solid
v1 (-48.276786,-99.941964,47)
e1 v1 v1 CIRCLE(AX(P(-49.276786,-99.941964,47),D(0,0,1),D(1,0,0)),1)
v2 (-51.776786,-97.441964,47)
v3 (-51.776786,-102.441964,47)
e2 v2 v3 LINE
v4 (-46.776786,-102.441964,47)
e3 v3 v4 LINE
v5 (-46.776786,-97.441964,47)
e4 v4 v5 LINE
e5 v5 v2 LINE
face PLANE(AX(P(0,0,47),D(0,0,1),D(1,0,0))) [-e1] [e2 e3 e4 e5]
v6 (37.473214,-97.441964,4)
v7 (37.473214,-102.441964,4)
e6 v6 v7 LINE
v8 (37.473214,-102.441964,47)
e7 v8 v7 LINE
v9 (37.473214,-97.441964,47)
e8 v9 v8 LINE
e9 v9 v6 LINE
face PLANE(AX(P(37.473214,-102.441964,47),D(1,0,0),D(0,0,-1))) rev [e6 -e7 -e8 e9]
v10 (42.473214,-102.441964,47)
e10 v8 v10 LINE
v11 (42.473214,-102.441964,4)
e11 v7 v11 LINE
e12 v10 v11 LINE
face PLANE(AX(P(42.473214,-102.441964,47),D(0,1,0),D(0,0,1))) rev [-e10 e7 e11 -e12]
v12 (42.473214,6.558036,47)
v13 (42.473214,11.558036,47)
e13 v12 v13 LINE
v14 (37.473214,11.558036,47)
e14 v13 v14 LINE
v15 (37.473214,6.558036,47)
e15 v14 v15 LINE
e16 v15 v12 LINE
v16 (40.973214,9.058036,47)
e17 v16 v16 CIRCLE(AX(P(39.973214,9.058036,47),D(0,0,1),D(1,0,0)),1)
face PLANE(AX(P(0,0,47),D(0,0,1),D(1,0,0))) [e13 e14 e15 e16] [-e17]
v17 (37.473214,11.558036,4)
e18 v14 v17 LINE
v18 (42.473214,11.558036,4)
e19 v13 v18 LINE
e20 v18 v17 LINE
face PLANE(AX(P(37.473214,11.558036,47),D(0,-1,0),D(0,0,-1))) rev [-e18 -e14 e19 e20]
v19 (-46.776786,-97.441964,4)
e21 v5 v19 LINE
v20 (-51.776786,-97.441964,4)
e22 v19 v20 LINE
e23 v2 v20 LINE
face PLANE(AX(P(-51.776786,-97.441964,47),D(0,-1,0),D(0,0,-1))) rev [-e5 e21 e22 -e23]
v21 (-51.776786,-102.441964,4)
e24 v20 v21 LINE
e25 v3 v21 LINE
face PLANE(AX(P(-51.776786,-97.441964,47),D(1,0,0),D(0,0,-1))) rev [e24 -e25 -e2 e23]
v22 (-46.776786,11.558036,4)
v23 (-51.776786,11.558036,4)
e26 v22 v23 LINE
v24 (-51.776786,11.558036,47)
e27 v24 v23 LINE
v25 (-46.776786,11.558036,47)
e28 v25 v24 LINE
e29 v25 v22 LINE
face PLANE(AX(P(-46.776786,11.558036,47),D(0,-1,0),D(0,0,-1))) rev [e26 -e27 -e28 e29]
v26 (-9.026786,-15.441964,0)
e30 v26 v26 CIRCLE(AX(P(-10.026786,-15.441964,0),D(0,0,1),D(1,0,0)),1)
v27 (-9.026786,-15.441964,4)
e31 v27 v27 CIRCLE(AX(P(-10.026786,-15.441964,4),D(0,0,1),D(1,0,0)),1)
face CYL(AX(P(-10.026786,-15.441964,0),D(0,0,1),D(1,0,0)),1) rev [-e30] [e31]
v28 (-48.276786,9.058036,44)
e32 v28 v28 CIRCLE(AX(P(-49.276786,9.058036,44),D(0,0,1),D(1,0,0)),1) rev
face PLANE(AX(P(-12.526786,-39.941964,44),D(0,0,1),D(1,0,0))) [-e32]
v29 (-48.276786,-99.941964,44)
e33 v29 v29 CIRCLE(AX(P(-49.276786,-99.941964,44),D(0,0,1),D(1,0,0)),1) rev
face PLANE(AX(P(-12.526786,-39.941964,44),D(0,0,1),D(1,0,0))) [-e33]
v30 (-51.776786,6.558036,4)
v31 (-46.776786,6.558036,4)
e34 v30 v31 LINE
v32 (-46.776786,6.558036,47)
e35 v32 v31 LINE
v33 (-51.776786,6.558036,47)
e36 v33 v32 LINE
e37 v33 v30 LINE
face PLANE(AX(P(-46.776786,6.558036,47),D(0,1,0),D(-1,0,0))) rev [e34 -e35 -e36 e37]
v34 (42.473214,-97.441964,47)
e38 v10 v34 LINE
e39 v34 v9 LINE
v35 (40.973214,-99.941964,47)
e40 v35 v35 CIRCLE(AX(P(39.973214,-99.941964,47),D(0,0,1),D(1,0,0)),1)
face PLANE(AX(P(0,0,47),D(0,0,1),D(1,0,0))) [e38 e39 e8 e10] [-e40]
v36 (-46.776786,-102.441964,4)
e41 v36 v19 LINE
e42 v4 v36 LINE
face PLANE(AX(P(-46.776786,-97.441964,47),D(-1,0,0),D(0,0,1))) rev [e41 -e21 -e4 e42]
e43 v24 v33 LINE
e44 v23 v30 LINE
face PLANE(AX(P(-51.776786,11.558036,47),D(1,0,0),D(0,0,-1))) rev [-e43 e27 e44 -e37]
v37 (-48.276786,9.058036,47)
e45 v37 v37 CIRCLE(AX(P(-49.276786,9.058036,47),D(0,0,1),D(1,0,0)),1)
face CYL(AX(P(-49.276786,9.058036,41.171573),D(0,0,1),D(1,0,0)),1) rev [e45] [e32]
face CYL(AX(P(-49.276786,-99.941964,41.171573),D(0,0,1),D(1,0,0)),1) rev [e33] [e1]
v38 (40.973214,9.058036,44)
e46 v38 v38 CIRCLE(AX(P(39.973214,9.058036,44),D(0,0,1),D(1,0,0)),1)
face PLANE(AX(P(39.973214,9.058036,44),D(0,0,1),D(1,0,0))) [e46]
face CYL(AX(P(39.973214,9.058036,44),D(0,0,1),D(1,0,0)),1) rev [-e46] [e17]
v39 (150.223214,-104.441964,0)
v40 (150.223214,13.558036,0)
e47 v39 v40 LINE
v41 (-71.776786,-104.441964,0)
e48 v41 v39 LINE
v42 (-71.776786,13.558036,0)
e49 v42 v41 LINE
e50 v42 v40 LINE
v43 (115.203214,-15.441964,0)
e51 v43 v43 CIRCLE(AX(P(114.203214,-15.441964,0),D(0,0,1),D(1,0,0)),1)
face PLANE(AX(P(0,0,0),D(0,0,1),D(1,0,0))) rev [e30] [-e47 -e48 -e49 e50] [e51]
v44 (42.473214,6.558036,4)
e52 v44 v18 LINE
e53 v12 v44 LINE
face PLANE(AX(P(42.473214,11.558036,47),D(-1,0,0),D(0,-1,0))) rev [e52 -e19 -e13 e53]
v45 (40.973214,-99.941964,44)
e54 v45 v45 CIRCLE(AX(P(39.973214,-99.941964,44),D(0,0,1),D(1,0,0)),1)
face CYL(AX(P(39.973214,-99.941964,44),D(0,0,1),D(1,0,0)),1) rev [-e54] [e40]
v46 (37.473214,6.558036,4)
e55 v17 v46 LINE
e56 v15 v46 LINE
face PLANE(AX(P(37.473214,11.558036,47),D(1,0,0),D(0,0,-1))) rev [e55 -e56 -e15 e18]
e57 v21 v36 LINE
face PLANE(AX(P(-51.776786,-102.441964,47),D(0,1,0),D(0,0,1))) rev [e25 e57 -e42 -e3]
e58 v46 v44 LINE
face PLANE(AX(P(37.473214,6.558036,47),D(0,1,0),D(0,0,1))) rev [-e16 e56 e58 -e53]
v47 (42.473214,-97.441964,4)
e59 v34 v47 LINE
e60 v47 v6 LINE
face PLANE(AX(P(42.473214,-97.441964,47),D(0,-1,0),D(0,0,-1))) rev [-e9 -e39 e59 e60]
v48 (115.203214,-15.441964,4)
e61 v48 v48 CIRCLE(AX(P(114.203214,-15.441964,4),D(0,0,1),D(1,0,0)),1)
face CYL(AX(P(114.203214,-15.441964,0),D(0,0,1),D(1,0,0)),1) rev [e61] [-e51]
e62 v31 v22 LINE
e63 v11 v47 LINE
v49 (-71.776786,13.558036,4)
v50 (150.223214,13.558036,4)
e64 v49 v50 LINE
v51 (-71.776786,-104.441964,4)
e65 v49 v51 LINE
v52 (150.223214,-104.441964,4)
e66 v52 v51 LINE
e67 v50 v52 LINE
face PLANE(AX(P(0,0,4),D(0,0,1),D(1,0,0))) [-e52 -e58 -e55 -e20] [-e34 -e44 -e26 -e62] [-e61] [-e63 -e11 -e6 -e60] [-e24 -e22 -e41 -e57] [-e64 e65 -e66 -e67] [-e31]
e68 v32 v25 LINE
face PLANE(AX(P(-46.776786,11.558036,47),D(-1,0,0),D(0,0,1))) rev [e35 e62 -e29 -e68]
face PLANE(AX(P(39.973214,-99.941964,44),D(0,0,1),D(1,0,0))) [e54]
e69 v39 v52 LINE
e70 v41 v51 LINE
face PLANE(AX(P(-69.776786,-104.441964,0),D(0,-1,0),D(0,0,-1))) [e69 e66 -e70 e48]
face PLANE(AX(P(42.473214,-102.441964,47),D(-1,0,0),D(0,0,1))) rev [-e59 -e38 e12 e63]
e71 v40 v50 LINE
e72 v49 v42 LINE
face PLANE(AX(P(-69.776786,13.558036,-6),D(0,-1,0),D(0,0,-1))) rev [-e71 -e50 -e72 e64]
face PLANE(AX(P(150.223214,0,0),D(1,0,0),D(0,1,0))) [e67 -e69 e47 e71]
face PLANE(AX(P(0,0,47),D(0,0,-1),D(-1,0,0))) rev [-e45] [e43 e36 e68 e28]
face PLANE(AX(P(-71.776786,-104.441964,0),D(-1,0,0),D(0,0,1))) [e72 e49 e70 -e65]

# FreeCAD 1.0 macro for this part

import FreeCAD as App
import Part
import Sketcher

V = App.Vector
Q = App.Units.Quantity


def edges_at(feature, points):
    """Names of the edges that pass closest to the given points."""
    edges = feature.Shape.Edges
    near = lambda p: min(range(len(edges)), key=lambda i: edges[i].distToShape(Part.Vertex(*p))[0])
    return sorted({f"Edge{near(p) + 1}" for p in points})


def add_polygon(sketch, points):
    """Adds a closed chain of lines whose ends are joined by coincident constraints."""
    first, n = sketch.GeometryCount, len(points)
    for a, b in zip(points, points[1:] + points[:1]):
        sketch.addGeometry(Part.LineSegment(App.Vector(*a, 0), App.Vector(*b, 0)), False)
    for i in range(n):
        sketch.addConstraint(Sketcher.Constraint("Coincident", first + i, 2, first + (i + 1) % n, 1))

doc = App.newDocument("Part")
body = doc.addObject("PartDesign::Body", "Body")

# Sketch on XY plane
sketch1 = body.newObject("Sketcher::SketchObject", "Sketch")
sketch1.AttachmentSupport = (doc.getObject("XY_Plane"), [""])
sketch1.MapMode = "FlatFace"
add_polygon(sketch1, [(-99.776786, 38.058036), (-99.776786, -111.941964), (100.223214, -111.941964), (100.223214, 38.058036)])  # lines 0-3
sketch1.addConstraint([
    Sketcher.Constraint("Vertical", 0),
    Sketcher.Constraint("Horizontal", 1),
    Sketcher.Constraint("Vertical", 2),
    Sketcher.Constraint("Horizontal", 3),
    Sketcher.Constraint("DistanceX", 1, 1, 1, 2, Q("200 mm")),
    Sketcher.Constraint("DistanceY", 0, 2, 0, 1, Q("150 mm")),
    Sketcher.Constraint("DistanceX", 0, 2, -1, 1, Q("99.776786 mm")),
    Sketcher.Constraint("DistanceY", 0, 2, -1, 1, Q("111.941964 mm")),
])
pad1 = body.newObject("PartDesign::Pad", "Pad")
pad1.Profile = sketch1
pad1.Length = 4

# Sketch on YZ plane
sketch2 = body.newObject("Sketcher::SketchObject", "Sketch001")
sketch2.AttachmentSupport = (doc.getObject("YZ_Plane"), [""])
sketch2.MapMode = "FlatFace"
sketch2.AttachmentOffset = App.Placement(V(0, 0, 100.223214), App.Rotation())
add_polygon(sketch2, [(38.058036, 4), (-111.941964, 4), (-111.941964, 0), (38.058036, 0)])  # lines 0-3
sketch2.addConstraint([
    Sketcher.Constraint("Horizontal", 0),
    Sketcher.Constraint("Vertical", 1),
    Sketcher.Constraint("Horizontal", 2),
    Sketcher.Constraint("Vertical", 3),
    Sketcher.Constraint("PointOnObject", 1, 2, -1),
    Sketcher.Constraint("DistanceX", 0, 2, 0, 1, Q("150 mm")),
    Sketcher.Constraint("DistanceY", 1, 2, 1, 1, Q("4 mm")),
    Sketcher.Constraint("DistanceX", 0, 2, -1, 1, Q("111.941964 mm")),
])
pad2 = body.newObject("PartDesign::Pad", "Pad001")
pad2.Profile = sketch2
pad2.Length = 50

# Sketch on XY plane
sketch3 = body.newObject("Sketcher::SketchObject", "Sketch002")
sketch3.AttachmentSupport = (doc.getObject("XY_Plane"), [""])
sketch3.MapMode = "FlatFace"
sketch3.addGeometry(Part.Circle(V(-96.776786, -77.941964, 0), V(0, 0, 1), 1), False)
sketch3.addConstraint([
    Sketcher.Constraint("Diameter", 0, Q("2 mm")),
    Sketcher.Constraint("DistanceX", 0, 3, -1, 1, Q("96.776786 mm")),
    Sketcher.Constraint("DistanceY", 0, 3, -1, 1, Q("77.941964 mm")),
])
pocket1 = body.newObject("PartDesign::Pocket", "Pocket")
pocket1.Profile = sketch3
pocket1.Length = 21
pocket1.Reversed = True

# Sketch on XY plane
sketch4 = body.newObject("Sketcher::SketchObject", "Sketch003")
sketch4.AttachmentSupport = (doc.getObject("XY_Plane"), [""])
sketch4.MapMode = "FlatFace"
sketch4.addGeometry(Part.Circle(V(147.223214, -77.941964, 0), V(0, 0, 1), 1), False)
sketch4.addConstraint([
    Sketcher.Constraint("Diameter", 0, Q("2 mm")),
    Sketcher.Constraint("DistanceX", -1, 1, 0, 3, Q("147.223214 mm")),
    Sketcher.Constraint("DistanceY", 0, 3, -1, 1, Q("77.941964 mm")),
])
pocket2 = body.newObject("PartDesign::Pocket", "Pocket001")
pocket2.Profile = sketch4
pocket2.Length = 21
pocket2.Reversed = True

# Sketch on XY plane
sketch5 = body.newObject("Sketcher::SketchObject", "Sketch004")
sketch5.AttachmentSupport = (doc.getObject("XY_Plane"), [""])
sketch5.MapMode = "FlatFace"
sketch5.addGeometry(Part.Circle(V(99.423214, -77.941964, 0), V(0, 0, 1), 1), False)
sketch5.addConstraint([
    Sketcher.Constraint("Diameter", 0, Q("2 mm")),
    Sketcher.Constraint("DistanceX", -1, 1, 0, 3, Q("99.423214 mm")),
    Sketcher.Constraint("DistanceY", 0, 3, -1, 1, Q("77.941964 mm")),
])
pocket3 = body.newObject("PartDesign::Pocket", "Pocket002")
pocket3.Profile = sketch5
pocket3.Length = 21
pocket3.Reversed = True

# Sketch on XY plane
sketch6 = body.newObject("Sketcher::SketchObject", "Sketch005")
sketch6.AttachmentSupport = (doc.getObject("XY_Plane"), [""])
sketch6.MapMode = "FlatFace"
sketch6.AttachmentOffset = App.Placement(V(0, 0, 4), App.Rotation())
sketch6.addGeometry([
    Part.Circle(V(114.203214, -15.441964, 0), V(0, 0, 1), 1),
    Part.Circle(V(-10.026786, -15.441964, 0), V(0, 0, 1), 1),
], False)
sketch6.addConstraint([
    Sketcher.Constraint("Equal", 0, 1),
    Sketcher.Constraint("Horizontal", 0, 3, 1, 3),
    Sketcher.Constraint("Diameter", 0, Q("2 mm")),
    Sketcher.Constraint("DistanceX", 1, 3, 0, 3, Q("124.23 mm")),
    Sketcher.Constraint("DistanceX", -1, 1, 0, 3, Q("114.203214 mm")),
    Sketcher.Constraint("DistanceY", 0, 3, -1, 1, Q("15.441964 mm")),
])
pocket4 = body.newObject("PartDesign::Pocket", "Pocket003")
pocket4.Profile = sketch6
pocket4.Type = "ThroughAll"

# Sketch on XY plane
sketch7 = body.newObject("Sketcher::SketchObject", "Sketch006")
sketch7.AttachmentSupport = (doc.getObject("XY_Plane"), [""])
sketch7.MapMode = "FlatFace"
sketch7.addGeometry(Part.Circle(V(-93.632683, -80.249228, 0), V(0, 0, 1), 6.144103), False)
sketch7.addConstraint([
    Sketcher.Constraint("Diameter", 0, Q("12.288205 mm")),
    Sketcher.Constraint("DistanceY", 0, 3, -1, 1, Q("80.249228 mm")),
    Sketcher.Constraint("DistanceX", 0, 3, -1, 1, Q("93.632683 mm")),
])
pad3 = body.newObject("PartDesign::Pad", "Pad002")
pad3.Profile = sketch7
pad3.Length = 4

# Sketch on XY plane
sketch8 = body.newObject("Sketcher::SketchObject", "Sketch007")
sketch8.AttachmentSupport = (doc.getObject("XY_Plane"), [""])
sketch8.MapMode = "FlatFace"
sketch8.AttachmentOffset = App.Placement(V(0, 0, 4), App.Rotation())
add_polygon(sketch8, [(-12.526786, 11.558036), (-12.526786, 6.558036), (-7.526786, 6.558036), (-7.526786, 11.558036)])  # lines 0-3
add_polygon(sketch8, [(111.33698, 11.558036), (111.33698, 6.558036), (116.33698, 6.558036), (116.33698, 11.558036)])  # lines 4-7
sketch8.addConstraint([
    Sketcher.Constraint("Vertical", 0),
    Sketcher.Constraint("Horizontal", 1),
    Sketcher.Constraint("Vertical", 2),
    Sketcher.Constraint("Horizontal", 3),
    Sketcher.Constraint("Vertical", 4),
    Sketcher.Constraint("Horizontal", 5),
    Sketcher.Constraint("Vertical", 6),
    Sketcher.Constraint("Horizontal", 7),
    Sketcher.Constraint("Horizontal", 1, 2, 4, 2),
    Sketcher.Constraint("Horizontal", 3, 2, 6, 2),
    Sketcher.Constraint("Equal", 3, 5),
    Sketcher.Constraint("Equal", 7, 0),
    Sketcher.Constraint("DistanceX", 1, 1, 1, 2, Q("5 mm")),
    Sketcher.Constraint("DistanceX", -1, 1, 4, 2, Q("111.33698 mm")),
    Sketcher.Constraint("DistanceX", 0, 2, -1, 1, Q("12.526786 mm")),
    Sketcher.Constraint("DistanceY", -1, 1, 0, 2, Q("6.558036 mm")),
])
pad4 = body.newObject("PartDesign::Pad", "Pad003")
pad4.Profile = sketch8
pad4.Length = 43

# Sketch on XY plane
sketch9 = body.newObject("Sketcher::SketchObject", "Sketch008")
sketch9.AttachmentSupport = (doc.getObject("XY_Plane"), [""])
sketch9.MapMode = "FlatFace"
sketch9.AttachmentOffset = App.Placement(V(0, 0, 4), App.Rotation())
add_polygon(sketch9, [(37.473214, 11.558036), (37.473214, 6.558036), (42.473214, 6.558036), (42.473214, 11.558036)])  # lines 0-3
sketch9.addConstraint([
    Sketcher.Constraint("Vertical", 0),
    Sketcher.Constraint("Horizontal", 1),
    Sketcher.Constraint("Vertical", 2),
    Sketcher.Constraint("Horizontal", 3),
    Sketcher.Constraint("Equal", 3, 0),
    Sketcher.Constraint("DistanceX", 1, 1, 1, 2, Q("5 mm")),
    Sketcher.Constraint("DistanceX", -1, 1, 0, 2, Q("37.473214 mm")),
    Sketcher.Constraint("DistanceY", -1, 1, 0, 2, Q("6.558036 mm")),
])
pad5 = body.newObject("PartDesign::Pad", "Pad004")
pad5.Profile = sketch9
pad5.Length = 43

# Sketch on XY plane
sketch10 = body.newObject("Sketcher::SketchObject", "Sketch009")
sketch10.AttachmentSupport = (doc.getObject("XY_Plane"), [""])
sketch10.MapMode = "FlatFace"
sketch10.AttachmentOffset = App.Placement(V(0, 0, 4), App.Rotation())
add_polygon(sketch10, [(-67.526786, 11.558036), (-67.526786, 6.558036), (-62.526786, 6.558036), (-62.526786, 11.558036)])  # lines 0-3
sketch10.addConstraint([
    Sketcher.Constraint("Vertical", 0),
    Sketcher.Constraint("Horizontal", 1),
    Sketcher.Constraint("Vertical", 2),
    Sketcher.Constraint("Horizontal", 3),
    Sketcher.Constraint("Equal", 3, 0),
    Sketcher.Constraint("DistanceX", 1, 1, 1, 2, Q("5 mm")),
    Sketcher.Constraint("DistanceX", 0, 2, -1, 1, Q("67.526786 mm")),
    Sketcher.Constraint("DistanceY", -1, 1, 0, 2, Q("6.558036 mm")),
])
pad6 = body.newObject("PartDesign::Pad", "Pad005")
pad6.Profile = sketch10
pad6.Length = 43

# Sketch on XY plane
sketch11 = body.newObject("Sketcher::SketchObject", "Sketch010")
sketch11.AttachmentSupport = (doc.getObject("XY_Plane"), [""])
sketch11.MapMode = "FlatFace"
sketch11.AttachmentOffset = App.Placement(V(0, 0, 4), App.Rotation())
add_polygon(sketch11, [(-99.776786, 38.058036), (-99.776786, -111.941964), (-69.776786, -111.941964), (-69.776786, 38.058036)])  # lines 0-3
sketch11.addConstraint([
    Sketcher.Constraint("Vertical", 0),
    Sketcher.Constraint("Horizontal", 1),
    Sketcher.Constraint("Vertical", 2),
    Sketcher.Constraint("Horizontal", 3),
    Sketcher.Constraint("DistanceX", 1, 1, 1, 2, Q("30 mm")),
    Sketcher.Constraint("DistanceY", 0, 2, 0, 1, Q("150 mm")),
    Sketcher.Constraint("DistanceX", 0, 2, -1, 1, Q("99.776786 mm")),
    Sketcher.Constraint("DistanceY", 0, 2, -1, 1, Q("111.941964 mm")),
])
pocket5 = body.newObject("PartDesign::Pocket", "Pocket004")
pocket5.Profile = sketch11
pocket5.Length = 10

# Sketch on XY plane
sketch12 = body.newObject("Sketcher::SketchObject", "Sketch011")
sketch12.AttachmentSupport = (doc.getObject("XY_Plane"), [""])
sketch12.MapMode = "FlatFace"
sketch12.AttachmentOffset = App.Placement(V(0, 0, 4), App.Rotation())
add_polygon(sketch12, [(-69.776786, 38.058036), (-69.776786, 13.558036), (150.223214, 13.558036), (150.223214, 38.058036)])  # lines 0-3
sketch12.addConstraint([
    Sketcher.Constraint("Vertical", 0),
    Sketcher.Constraint("Horizontal", 1),
    Sketcher.Constraint("Vertical", 2),
    Sketcher.Constraint("Horizontal", 3),
    Sketcher.Constraint("DistanceX", 1, 1, 1, 2, Q("220 mm")),
    Sketcher.Constraint("DistanceY", 0, 2, 0, 1, Q("24.5 mm")),
    Sketcher.Constraint("DistanceX", 0, 2, -1, 1, Q("69.776786 mm")),
    Sketcher.Constraint("DistanceY", -1, 1, 0, 2, Q("13.558036 mm")),
])
pocket6 = body.newObject("PartDesign::Pocket", "Pocket005")
pocket6.Profile = sketch12
pocket6.Length = 10

# Sketch on XY plane
sketch13 = body.newObject("Sketcher::SketchObject", "Sketch012")
sketch13.AttachmentSupport = (doc.getObject("XY_Plane"), [""])
sketch13.MapMode = "FlatFace"
sketch13.AttachmentOffset = App.Placement(V(0, 0, 47), App.Rotation())
add_polygon(sketch13, [(101.055575, 13.558036), (101.055575, -10.234104), (141.931075, -10.234104), (141.931075, 13.558036)])  # lines 0-3
add_polygon(sketch13, [(-20.849591, 16.088613), (-20.849591, -16.088613), (9.927256, -16.088613), (9.927256, 16.088613)])  # lines 4-7
sketch13.addConstraint([
    Sketcher.Constraint("Vertical", 0),
    Sketcher.Constraint("Horizontal", 1),
    Sketcher.Constraint("Vertical", 2),
    Sketcher.Constraint("Horizontal", 3),
    Sketcher.Constraint("Vertical", 4),
    Sketcher.Constraint("Horizontal", 5),
    Sketcher.Constraint("Vertical", 6),
    Sketcher.Constraint("Horizontal", 7),
    Sketcher.Constraint("DistanceX", 1, 1, 1, 2, Q("40.875499 mm")),
    Sketcher.Constraint("DistanceY", 0, 2, 0, 1, Q("23.79214 mm")),
    Sketcher.Constraint("DistanceX", 5, 1, 5, 2, Q("30.776847 mm")),
    Sketcher.Constraint("DistanceY", 4, 2, 4, 1, Q("32.177226 mm")),
    Sketcher.Constraint("DistanceX", 4, 2, -1, 1, Q("20.849591 mm")),
    Sketcher.Constraint("DistanceY", 4, 2, 0, 2, Q("5.854509 mm")),
    Sketcher.Constraint("DistanceX", 5, 2, 0, 2, Q("91.128319 mm")),
    Sketcher.Constraint("DistanceY", 0, 2, -1, 1, Q("10.234104 mm")),
])
pocket7 = body.newObject("PartDesign::Pocket", "Pocket006")
pocket7.Profile = sketch13
pocket7.Length = 43

# Sketch on XY plane
sketch14 = body.newObject("Sketcher::SketchObject", "Sketch013")
sketch14.AttachmentSupport = (doc.getObject("XY_Plane"), [""])
sketch14.MapMode = "FlatFace"
sketch14.AttachmentOffset = App.Placement(V(0, 0, 4), App.Rotation())
add_polygon(sketch14, [(-69.776786, -104.441964), (-69.776786, -111.941964), (150.223214, -111.941964), (150.223214, -104.441964)])  # lines 0-3
sketch14.addConstraint([
    Sketcher.Constraint("Vertical", 0),
    Sketcher.Constraint("Horizontal", 1),
    Sketcher.Constraint("Vertical", 2),
    Sketcher.Constraint("Horizontal", 3),
    Sketcher.Constraint("DistanceX", 1, 1, 1, 2, Q("220 mm")),
    Sketcher.Constraint("DistanceY", 0, 2, 0, 1, Q("7.5 mm")),
    Sketcher.Constraint("DistanceX", 0, 2, -1, 1, Q("69.776786 mm")),
    Sketcher.Constraint("DistanceY", 0, 2, -1, 1, Q("111.941964 mm")),
])
pocket8 = body.newObject("PartDesign::Pocket", "Pocket007")
pocket8.Profile = sketch14
pocket8.Length = 10

# Sketch on XY plane
sketch15 = body.newObject("Sketcher::SketchObject", "Sketch014")
sketch15.AttachmentSupport = (doc.getObject("XY_Plane"), [""])
sketch15.MapMode = "FlatFace"
add_polygon(sketch15, [(-69.776786, 13.558036), (-69.776786, -104.441964), (-71.776786, -104.441964), (-71.776786, 13.558036)])  # lines 0-3
sketch15.addConstraint([
    Sketcher.Constraint("Vertical", 0),
    Sketcher.Constraint("Horizontal", 1),
    Sketcher.Constraint("Vertical", 2),
    Sketcher.Constraint("Horizontal", 3),
    Sketcher.Constraint("DistanceX", 1, 2, 1, 1, Q("2 mm")),
    Sketcher.Constraint("DistanceY", 0, 2, 0, 1, Q("118 mm")),
    Sketcher.Constraint("DistanceX", 0, 2, -1, 1, Q("69.776786 mm")),
    Sketcher.Constraint("DistanceY", 0, 2, -1, 1, Q("104.441964 mm")),
])
pad7 = body.newObject("PartDesign::Pad", "Pad006")
pad7.Profile = sketch15
pad7.Length = 47

# Sketch on YZ plane
sketch16 = body.newObject("Sketcher::SketchObject", "Sketch015")
sketch16.AttachmentSupport = (doc.getObject("YZ_Plane"), [""])
sketch16.MapMode = "FlatFace"
sketch16.AttachmentOffset = App.Placement(V(0, 0, -71.776786), App.Rotation())
add_polygon(sketch16, [(-41.941964, 6.5), (-48.941964, 6.5), (-48.941964, 13.5), (-41.941964, 13.5)])  # lines 0-3
sketch16.addConstraint([
    Sketcher.Constraint("Horizontal", 0),
    Sketcher.Constraint("Vertical", 1),
    Sketcher.Constraint("Horizontal", 2),
    Sketcher.Constraint("Vertical", 3),
    Sketcher.Constraint("Equal", 2, 1),
    Sketcher.Constraint("DistanceX", 0, 2, 0, 1, Q("7 mm")),
    Sketcher.Constraint("DistanceY", -1, 1, 0, 2, Q("6.5 mm")),
    Sketcher.Constraint("DistanceX", 0, 2, -1, 1, Q("48.941964 mm")),
])
pad8 = body.newObject("PartDesign::Pad", "Pad007")
pad8.Profile = sketch16
pad8.Length = 10

# Sketch on YZ plane
sketch17 = body.newObject("Sketcher::SketchObject", "Sketch016")
sketch17.AttachmentSupport = (doc.getObject("YZ_Plane"), [""])
sketch17.MapMode = "FlatFace"
sketch17.AttachmentOffset = App.Placement(V(0, 0, -71.776786), App.Rotation())
sketch17.addGeometry(Part.Circle(V(-45.441964, 10, 0), V(0, 0, 1), 2.5), False)
sketch17.addConstraint([
    Sketcher.Constraint("Diameter", 0, Q("5 mm")),
    Sketcher.Constraint("DistanceY", -1, 1, 0, 3, Q("10 mm")),
    Sketcher.Constraint("DistanceX", 0, 3, -1, 1, Q("45.441964 mm")),
])
pocket9 = body.newObject("PartDesign::Pocket", "Pocket008")
pocket9.Profile = sketch17
pocket9.Length = 9
pocket9.Reversed = True

# Sketch on YZ plane
sketch18 = body.newObject("Sketcher::SketchObject", "Sketch017")
sketch18.AttachmentSupport = (doc.getObject("YZ_Plane"), [""])
sketch18.MapMode = "FlatFace"
sketch18.AttachmentOffset = App.Placement(V(0, 0, -71.776786), App.Rotation())
add_polygon(sketch18, [(-82.941964, 6.119313), (-97.441964, 6.119313), (-97.441964, 13.319313), (-82.941964, 13.319313)])  # lines 0-3
sketch18.addConstraint([
    Sketcher.Constraint("Horizontal", 0),
    Sketcher.Constraint("Vertical", 1),
    Sketcher.Constraint("Horizontal", 2),
    Sketcher.Constraint("Vertical", 3),
    Sketcher.Constraint("DistanceX", 0, 2, 0, 1, Q("14.5 mm")),
    Sketcher.Constraint("DistanceY", 1, 1, 1, 2, Q("7.2 mm")),
    Sketcher.Constraint("DistanceX", 0, 2, -1, 1, Q("97.441964 mm")),
    Sketcher.Constraint("DistanceY", -1, 1, 0, 2, Q("6.119313 mm")),
])
pad9 = body.newObject("PartDesign::Pad", "Pad008")
pad9.Profile = sketch18
pad9.Length = 10

# Sketch on YZ plane
sketch19 = body.newObject("Sketcher::SketchObject", "Sketch018")
sketch19.AttachmentSupport = (doc.getObject("YZ_Plane"), [""])
sketch19.MapMode = "FlatFace"
sketch19.AttachmentOffset = App.Placement(V(0, 0, -71.776786), App.Rotation())
add_polygon(sketch19, [(-84.00501, 7.307773), (-96.378918, 7.307773), (-96.378918, 12.270094), (-84.00501, 12.270094)])  # lines 0-3
sketch19.addConstraint([
    Sketcher.Constraint("Horizontal", 0),
    Sketcher.Constraint("Vertical", 1),
    Sketcher.Constraint("Horizontal", 2),
    Sketcher.Constraint("Vertical", 3),
    Sketcher.Constraint("DistanceY", 1, 1, 1, 2, Q("4.962321 mm")),
    Sketcher.Constraint("DistanceX", 0, 2, 0, 1, Q("12.373908 mm")),
    Sketcher.Constraint("DistanceX", 0, 2, -1, 1, Q("96.378918 mm")),
    Sketcher.Constraint("DistanceY", -1, 1, 0, 2, Q("7.307773 mm")),
])
pocket10 = body.newObject("PartDesign::Pocket", "Pocket009")
pocket10.Profile = sketch19
pocket10.Length = 9
pocket10.Reversed = True

# Sketch on YZ plane
sketch20 = body.newObject("Sketcher::SketchObject", "Sketch019")
sketch20.AttachmentSupport = (doc.getObject("YZ_Plane"), [""])
sketch20.MapMode = "FlatFace"
sketch20.AttachmentOffset = App.Placement(V(0, 0, -62.776786), App.Rotation())
add_polygon(sketch20, [(-85.576862, 9.400217), (-94.807067, 9.400217), (-94.807067, 10.177649), (-85.576862, 10.177649)])  # lines 0-3
sketch20.addConstraint([
    Sketcher.Constraint("Horizontal", 0),
    Sketcher.Constraint("Vertical", 1),
    Sketcher.Constraint("Horizontal", 2),
    Sketcher.Constraint("Vertical", 3),
    Sketcher.Constraint("DistanceY", 1, 1, 1, 2, Q("0.777431 mm")),
    Sketcher.Constraint("DistanceX", 0, 2, 0, 1, Q("9.230205 mm")),
    Sketcher.Constraint("DistanceY", -1, 1, 1, 2, Q("10.177649 mm")),
    Sketcher.Constraint("DistanceX", 2, 2, -1, 1, Q("85.576862 mm")),
])
pad10 = body.newObject("PartDesign::Pad", "Pad009")
pad10.Profile = sketch20
pad10.Length = 8
pad10.Reversed = True

# Sketch on YZ plane
sketch21 = body.newObject("Sketcher::SketchObject", "Sketch020")
sketch21.AttachmentSupport = (doc.getObject("YZ_Plane"), [""])
sketch21.MapMode = "FlatFace"
sketch21.AttachmentOffset = App.Placement(V(0, 0, -62.776786), App.Rotation())
add_polygon(sketch21, [(-85.924414, 10.177649), (-86.724414, 10.177649), (-86.724414, 10.768524), (-85.924414, 10.768524)])  # lines 0-3
add_polygon(sketch21, [(-87.989557, 10.177649), (-88.825837, 10.177649), (-88.825837, 10.768524), (-87.989557, 10.768524)])  # lines 4-7
add_polygon(sketch21, [(-91.088714, 10.177649), (-91.875801, 10.177649), (-91.875801, 10.768524), (-91.088714, 10.768524)])  # lines 8-11
add_polygon(sketch21, [(-93.302397, 10.177649), (-94.138678, 10.177649), (-94.138678, 10.768524), (-93.302397, 10.768524)])  # lines 12-15
sketch21.addConstraint([
    Sketcher.Constraint("Horizontal", 0),
    Sketcher.Constraint("Vertical", 1),
    Sketcher.Constraint("Horizontal", 2),
    Sketcher.Constraint("Vertical", 3),
    Sketcher.Constraint("Horizontal", 4),
    Sketcher.Constraint("Vertical", 5),
    Sketcher.Constraint("Horizontal", 6),
    Sketcher.Constraint("Vertical", 7),
    Sketcher.Constraint("Horizontal", 8),
    Sketcher.Constraint("Vertical", 9),
    Sketcher.Constraint("Horizontal", 10),
    Sketcher.Constraint("Vertical", 11),
    Sketcher.Constraint("Horizontal", 12),
    Sketcher.Constraint("Vertical", 13),
    Sketcher.Constraint("Horizontal", 14),
    Sketcher.Constraint("Vertical", 15),
    Sketcher.Constraint("Horizontal", 3, 2, 4, 2),
    Sketcher.Constraint("Horizontal", 2, 2, 5, 2),
    Sketcher.Constraint("Horizontal", 7, 2, 8, 2),
    Sketcher.Constraint("Horizontal", 6, 2, 9, 2),
    Sketcher.Constraint("Horizontal", 11, 2, 12, 2),
    Sketcher.Constraint("Horizontal", 10, 2, 13, 2),
    Sketcher.Constraint("Equal", 6, 12),
    Sketcher.Constraint("DistanceX", 0, 2, 0, 1, Q("0.8 mm")),
    Sketcher.Constraint("DistanceX", 4, 2, 4, 1, Q("0.83628 mm")),
    Sketcher.Constraint("DistanceX", 8, 2, -1, 1, Q("91.875801 mm")),
    Sketcher.Constraint("DistanceX", 8, 2, 8, 1, Q("0.787088 mm")),
    Sketcher.Constraint("DistanceY", 1, 1, 1, 2, Q("0.590875 mm")),
    Sketcher.Constraint("DistanceY", -1, 1, 0, 2, Q("10.177649 mm")),
    Sketcher.Constraint("DistanceX", 12, 2, 4, 2, Q("5.312841 mm")),
    Sketcher.Constraint("DistanceX", 0, 2, -1, 1, Q("86.724414 mm")),
    Sketcher.Constraint("DistanceX", 4, 2, -1, 1, Q("88.825837 mm")),
])
pad11 = body.newObject("PartDesign::Pad", "Pad010")
pad11.Profile = sketch21
pad11.Length = 7
pad11.Reversed = True

# Sketch on XY plane
sketch22 = body.newObject("Sketcher::SketchObject", "Sketch021")
sketch22.AttachmentSupport = (doc.getObject("XY_Plane"), [""])
sketch22.MapMode = "FlatFace"
sketch22.AttachmentOffset = App.Placement(V(0, 0, 4), App.Rotation())
add_polygon(sketch22, [(37.473214, -37.441964), (37.473214, -42.441964), (42.473214, -42.441964), (42.473214, -37.441964)])  # lines 0-3
sketch22.addConstraint([
    Sketcher.Constraint("Vertical", 0),
    Sketcher.Constraint("Horizontal", 1),
    Sketcher.Constraint("Vertical", 2),
    Sketcher.Constraint("Horizontal", 3),
    Sketcher.Constraint("Equal", 3, 0),
    Sketcher.Constraint("DistanceX", 1, 1, 1, 2, Q("5 mm")),
    Sketcher.Constraint("DistanceX", -1, 1, 0, 2, Q("37.473214 mm")),
    Sketcher.Constraint("DistanceY", 0, 2, -1, 1, Q("42.441964 mm")),
])
pad12 = body.newObject("PartDesign::Pad", "Pad011")
pad12.Profile = sketch22
pad12.Length = 43

# Sketch on XY plane
sketch23 = body.newObject("Sketcher::SketchObject", "Sketch022")
sketch23.AttachmentSupport = (doc.getObject("XY_Plane"), [""])
sketch23.MapMode = "FlatFace"
sketch23.AttachmentOffset = App.Placement(V(0, 0, 4), App.Rotation())
add_polygon(sketch23, [(37.473214, -63.441964), (37.473214, -68.441964), (42.473214, -68.441964), (42.473214, -63.441964)])  # lines 0-3
add_polygon(sketch23, [(-67.526786, -63.441964), (-67.526786, -68.441964), (-62.526786, -68.441964), (-62.526786, -63.441964)])  # lines 4-7
sketch23.addConstraint([
    Sketcher.Constraint("Vertical", 0),
    Sketcher.Constraint("Horizontal", 1),
    Sketcher.Constraint("Vertical", 2),
    Sketcher.Constraint("Horizontal", 3),
    Sketcher.Constraint("Vertical", 4),
    Sketcher.Constraint("Horizontal", 5),
    Sketcher.Constraint("Vertical", 6),
    Sketcher.Constraint("Horizontal", 7),
    Sketcher.Constraint("Horizontal", 1, 2, 4, 2),
    Sketcher.Constraint("Horizontal", 3, 2, 6, 2),
    Sketcher.Constraint("Equal", 3, 5),
    Sketcher.Constraint("Equal", 7, 0),
    Sketcher.Constraint("DistanceX", 1, 1, 1, 2, Q("5 mm")),
    Sketcher.Constraint("DistanceX", 4, 2, 0, 2, Q("105 mm")),
    Sketcher.Constraint("DistanceX", -1, 1, 0, 2, Q("37.473214 mm")),
    Sketcher.Constraint("DistanceY", 0, 2, -1, 1, Q("68.441964 mm")),
])
pad13 = body.newObject("PartDesign::Pad", "Pad012")
pad13.Profile = sketch23
pad13.Length = 43

# Sketch on XY plane
sketch24 = body.newObject("Sketcher::SketchObject", "Sketch023")
sketch24.AttachmentSupport = (doc.getObject("XY_Plane"), [""])
sketch24.MapMode = "FlatFace"
sketch24.AttachmentOffset = App.Placement(V(0, 0, 4), App.Rotation())
add_polygon(sketch24, [(37.473214, -37.441964), (37.473214, -42.441964), (42.473214, -42.441964), (42.473214, -37.441964)])  # lines 0-3
sketch24.addConstraint([
    Sketcher.Constraint("Vertical", 0),
    Sketcher.Constraint("Horizontal", 1),
    Sketcher.Constraint("Vertical", 2),
    Sketcher.Constraint("Horizontal", 3),
    Sketcher.Constraint("Equal", 3, 0),
    Sketcher.Constraint("DistanceX", 1, 1, 1, 2, Q("5 mm")),
    Sketcher.Constraint("DistanceX", -1, 1, 0, 2, Q("37.473214 mm")),
    Sketcher.Constraint("DistanceY", 0, 2, -1, 1, Q("42.441964 mm")),
])
pocket11 = body.newObject("PartDesign::Pocket", "Pocket010")
pocket11.Profile = sketch24
pocket11.Length = 43
pocket11.Reversed = True

# Sketch on XY plane
sketch25 = body.newObject("Sketcher::SketchObject", "Sketch024")
sketch25.AttachmentSupport = (doc.getObject("XY_Plane"), [""])
sketch25.MapMode = "FlatFace"
sketch25.AttachmentOffset = App.Placement(V(0, 0, 4), App.Rotation())
add_polygon(sketch25, [(37.473214, -97.441964), (37.473214, -102.441964), (42.473214, -102.441964), (42.473214, -97.441964)])  # lines 0-3
sketch25.addConstraint([
    Sketcher.Constraint("Vertical", 0),
    Sketcher.Constraint("Horizontal", 1),
    Sketcher.Constraint("Vertical", 2),
    Sketcher.Constraint("Horizontal", 3),
    Sketcher.Constraint("Equal", 3, 0),
    Sketcher.Constraint("DistanceX", 1, 1, 1, 2, Q("5 mm")),
    Sketcher.Constraint("DistanceX", -1, 1, 0, 2, Q("37.473214 mm")),
    Sketcher.Constraint("DistanceY", 0, 2, -1, 1, Q("102.441964 mm")),
])
pad14 = body.newObject("PartDesign::Pad", "Pad013")
pad14.Profile = sketch25
pad14.Length = 43

# Sketch on XY plane
sketch26 = body.newObject("Sketcher::SketchObject", "Sketch025")
sketch26.AttachmentSupport = (doc.getObject("XY_Plane"), [""])
sketch26.MapMode = "FlatFace"
sketch26.AttachmentOffset = App.Placement(V(0, 0, 4), App.Rotation())
add_polygon(sketch26, [(37.473214, -63.441964), (37.473214, -68.441964), (42.473214, -68.441964), (42.473214, -63.441964)])  # lines 0-3
sketch26.addConstraint([
    Sketcher.Constraint("Vertical", 0),
    Sketcher.Constraint("Horizontal", 1),
    Sketcher.Constraint("Vertical", 2),
    Sketcher.Constraint("Horizontal", 3),
    Sketcher.Constraint("Equal", 3, 0),
    Sketcher.Constraint("DistanceX", 1, 1, 1, 2, Q("5 mm")),
    Sketcher.Constraint("DistanceX", -1, 1, 0, 2, Q("37.473214 mm")),
    Sketcher.Constraint("DistanceY", 0, 2, -1, 1, Q("68.441964 mm")),
])
pocket12 = body.newObject("PartDesign::Pocket", "Pocket011")
pocket12.Profile = sketch26
pocket12.Length = 43
pocket12.Reversed = True
body2 = doc.addObject("PartDesign::Body", "Body001")

# Sketch on YZ plane
sketch27 = body2.newObject("Sketcher::SketchObject", "Sketch026")
sketch27.AttachmentSupport = (doc.getObject("YZ_Plane001"), [""])
sketch27.MapMode = "FlatFace"
sketch27.AttachmentOffset = App.Placement(V(0, 0, -62.776786), App.Rotation())
sketch27.addGeometry(Part.Circle(V(-45.441964, 10, 0), V(0, 0, 1), 1), False)
sketch27.addConstraint([
    Sketcher.Constraint("Diameter", 0, Q("2 mm")),
    Sketcher.Constraint("DistanceY", -1, 1, 0, 3, Q("10 mm")),
    Sketcher.Constraint("DistanceX", 0, 3, -1, 1, Q("45.441964 mm")),
])
pad15 = body2.newObject("PartDesign::Pad", "Pad014")
pad15.Profile = sketch27
pad15.Length = 9
pad15.Reversed = True
doc.recompute()

fillet = body2.newObject("PartDesign::Fillet", "Fillet")
fillet.Base = (pad15, edges_at(pad15, [(-71.777, -45.442, 9)]))
fillet.Radius = 1
doc.recompute()

boolean = body.newObject("PartDesign::Boolean", "Boolean")
boolean.Type = "Fuse"
boolean.addObjects([body2])

# Sketch on XY plane
sketch28 = body.newObject("Sketcher::SketchObject", "Sketch027")
sketch28.AttachmentSupport = (doc.getObject("XY_Plane"), [""])
sketch28.MapMode = "FlatFace"
sketch28.AttachmentOffset = App.Placement(V(0, 0, 47), App.Rotation())
add_polygon(sketch28, [(-71.776786, -38.032042), (-71.776786, -104.441964), (-69.776786, -104.441964), (-69.776786, -38.032042)])  # lines 0-3
sketch28.addConstraint([
    Sketcher.Constraint("Vertical", 0),
    Sketcher.Constraint("Horizontal", 1),
    Sketcher.Constraint("Vertical", 2),
    Sketcher.Constraint("Horizontal", 3),
    Sketcher.Constraint("DistanceX", 1, 1, 1, 2, Q("2 mm")),
    Sketcher.Constraint("DistanceY", 0, 2, 0, 1, Q("66.409922 mm")),
    Sketcher.Constraint("DistanceX", 0, 2, -1, 1, Q("71.776786 mm")),
    Sketcher.Constraint("DistanceY", 0, 2, -1, 1, Q("104.441964 mm")),
])
pad16 = body.newObject("PartDesign::Pad", "Pad015")
pad16.Profile = sketch28
pad16.Length = 47
pad16.Reversed = True

# Sketch on XY plane
sketch29 = body.newObject("Sketcher::SketchObject", "Sketch028")
sketch29.AttachmentSupport = (doc.getObject("XY_Plane"), [""])
sketch29.MapMode = "FlatFace"
sketch29.AttachmentOffset = App.Placement(V(0, 0, 13.5), App.Rotation())
add_polygon(sketch29, [(-69.776786, -41.941964), (-69.776786, -48.941964), (-61.776786, -48.941964), (-61.776786, -41.941964)])  # lines 0-3
add_polygon(sketch29, [(-69.776786, -82.941964), (-69.776786, -97.441964), (-61.776786, -97.441964), (-61.776786, -82.941964)])  # lines 4-7
sketch29.addConstraint([
    Sketcher.Constraint("Vertical", 0),
    Sketcher.Constraint("Horizontal", 1),
    Sketcher.Constraint("Vertical", 2),
    Sketcher.Constraint("Horizontal", 3),
    Sketcher.Constraint("Vertical", 4),
    Sketcher.Constraint("Horizontal", 5),
    Sketcher.Constraint("Vertical", 6),
    Sketcher.Constraint("Horizontal", 7),
    Sketcher.Constraint("Vertical", 3, 2, 4, 2),
    Sketcher.Constraint("Vertical", 2, 2, 5, 2),
    Sketcher.Constraint("DistanceX", 1, 1, 1, 2, Q("8 mm")),
    Sketcher.Constraint("DistanceY", 0, 2, 0, 1, Q("7 mm")),
    Sketcher.Constraint("DistanceY", 4, 2, 4, 1, Q("14.5 mm")),
    Sketcher.Constraint("DistanceY", 6, 2, 1, 2, Q("34 mm")),
    Sketcher.Constraint("DistanceX", 0, 2, -1, 1, Q("69.776786 mm")),
    Sketcher.Constraint("DistanceY", 0, 2, -1, 1, Q("48.941964 mm")),
])
pocket13 = body.newObject("PartDesign::Pocket", "Pocket012")
pocket13.Profile = sketch29
pocket13.Length = 9.5

# Sketch on XY plane
sketch30 = body.newObject("Sketcher::SketchObject", "Sketch029")
sketch30.AttachmentSupport = (doc.getObject("XY_Plane"), [""])
sketch30.MapMode = "FlatFace"
sketch30.AttachmentOffset = App.Placement(V(0, 0, 47), App.Rotation())
add_polygon(sketch30, [(-67.526786, -63.441964), (-67.526786, -68.441964), (-62.526786, -68.441964), (-62.526786, -63.441964)])  # lines 0-3
sketch30.addConstraint([
    Sketcher.Constraint("Vertical", 0),
    Sketcher.Constraint("Horizontal", 1),
    Sketcher.Constraint("Vertical", 2),
    Sketcher.Constraint("Horizontal", 3),
    Sketcher.Constraint("Equal", 3, 0),
    Sketcher.Constraint("DistanceX", 1, 1, 1, 2, Q("5 mm")),
    Sketcher.Constraint("DistanceX", 0, 2, -1, 1, Q("67.526786 mm")),
    Sketcher.Constraint("DistanceY", 0, 2, -1, 1, Q("68.441964 mm")),
])
pocket14 = body.newObject("PartDesign::Pocket", "Pocket013")
pocket14.Profile = sketch30
pocket14.Length = 43

# Sketch on XY plane
sketch31 = body.newObject("Sketcher::SketchObject", "Sketch030")
sketch31.AttachmentSupport = (doc.getObject("XY_Plane"), [""])
sketch31.MapMode = "FlatFace"
sketch31.AttachmentOffset = App.Placement(V(0, 0, 4), App.Rotation())
add_polygon(sketch31, [(-67.526786, -97.441964), (-67.526786, -102.441964), (-62.526786, -102.441964), (-62.526786, -97.441964)])  # lines 0-3
sketch31.addConstraint([
    Sketcher.Constraint("Vertical", 0),
    Sketcher.Constraint("Horizontal", 1),
    Sketcher.Constraint("Vertical", 2),
    Sketcher.Constraint("Horizontal", 3),
    Sketcher.Constraint("Equal", 3, 0),
    Sketcher.Constraint("DistanceX", 1, 1, 1, 2, Q("5 mm")),
    Sketcher.Constraint("DistanceX", 0, 2, -1, 1, Q("67.526786 mm")),
    Sketcher.Constraint("DistanceY", 0, 2, -1, 1, Q("102.441964 mm")),
])
pad17 = body.newObject("PartDesign::Pad", "Pad016")
pad17.Profile = sketch31
pad17.Length = 43

# Sketch on XY plane
sketch32 = body.newObject("Sketcher::SketchObject", "Sketch031")
sketch32.AttachmentSupport = (doc.getObject("XY_Plane"), [""])
sketch32.MapMode = "FlatFace"
sketch32.AttachmentOffset = App.Placement(V(0, 0, 4), App.Rotation())
add_polygon(sketch32, [(-15.026786, -37.441964), (-15.026786, -42.441964), (-10.026786, -42.441964), (-10.026786, -37.441964)])  # lines 0-3
sketch32.addConstraint([
    Sketcher.Constraint("Vertical", 0),
    Sketcher.Constraint("Horizontal", 1),
    Sketcher.Constraint("Vertical", 2),
    Sketcher.Constraint("Horizontal", 3),
    Sketcher.Constraint("Equal", 3, 0),
    Sketcher.Constraint("DistanceX", 1, 1, 1, 2, Q("5 mm")),
    Sketcher.Constraint("DistanceX", 0, 2, -1, 1, Q("15.026786 mm")),
    Sketcher.Constraint("DistanceY", 0, 2, -1, 1, Q("42.441964 mm")),
])
pad18 = body.newObject("PartDesign::Pad", "Pad017")
pad18.Profile = sketch32
pad18.Length = 43

# Sketch on XY plane
sketch33 = body.newObject("Sketcher::SketchObject", "Sketch032")
sketch33.AttachmentSupport = (doc.getObject("XY_Plane"), [""])
sketch33.MapMode = "FlatFace"
sketch33.AttachmentOffset = App.Placement(V(0, 0, 47), App.Rotation())
sketch33.addGeometry([
    Part.Circle(V(39.973214, 9.058036, 0), V(0, 0, 1), 1),  # 0
    Part.Circle(V(39.973214, -99.941964, 0), V(0, 0, 1), 1),  # 1
    Part.Circle(V(-65.026786, -99.941964, 0), V(0, 0, 1), 1),  # 2
    Part.Circle(V(-65.026786, 9.058036, 0), V(0, 0, 1), 1),  # 3
    Part.Circle(V(-12.526786, -39.941964, 0), V(0, 0, 1), 1),  # 4
], False)
sketch33.addConstraint([
    Sketcher.Constraint("Equal", 0, 1),
    Sketcher.Constraint("Equal", 1, 2),
    Sketcher.Constraint("Equal", 2, 3),
    Sketcher.Constraint("Equal", 3, 4),
    Sketcher.Constraint("Horizontal", 1, 3, 2, 3),
    Sketcher.Constraint("Horizontal", 0, 3, 3, 3),
    Sketcher.Constraint("Vertical", 0, 3, 1, 3),
    Sketcher.Constraint("Vertical", 2, 3, 3, 3),
    Sketcher.Constraint("Diameter", 0, Q("2 mm")),
    Sketcher.Constraint("DistanceY", 1, 3, 0, 3, Q("109 mm")),
    Sketcher.Constraint("DistanceX", 2, 3, 1, 3, Q("105 mm")),
    Sketcher.Constraint("DistanceY", 4, 3, 0, 3, Q("49 mm")),
    Sketcher.Constraint("DistanceX", 4, 3, 0, 3, Q("52.5 mm")),
    Sketcher.Constraint("DistanceX", -1, 1, 0, 3, Q("39.973214 mm")),
    Sketcher.Constraint("DistanceY", -1, 1, 0, 3, Q("9.058036 mm")),
])
pocket15 = body.newObject("PartDesign::Pocket", "Pocket014")
pocket15.Profile = sketch33
pocket15.Length = 3

# Sketch on XY plane
sketch34 = body.newObject("Sketcher::SketchObject", "Sketch033")
sketch34.AttachmentSupport = (doc.getObject("XY_Plane"), [""])
sketch34.MapMode = "FlatFace"
sketch34.AttachmentOffset = App.Placement(V(0, 0, 4), App.Rotation())
add_polygon(sketch34, [(-71.776786, 13.558036), (-71.776786, -104.441964), (-69.776786, -104.441964), (-69.776786, 13.558036)])  # lines 0-3
sketch34.addConstraint([
    Sketcher.Constraint("Vertical", 0),
    Sketcher.Constraint("Horizontal", 1),
    Sketcher.Constraint("Vertical", 2),
    Sketcher.Constraint("Horizontal", 3),
    Sketcher.Constraint("DistanceX", 1, 1, 1, 2, Q("2 mm")),
    Sketcher.Constraint("DistanceY", 0, 2, 0, 1, Q("118 mm")),
    Sketcher.Constraint("DistanceX", 0, 2, -1, 1, Q("71.776786 mm")),
    Sketcher.Constraint("DistanceY", 0, 2, -1, 1, Q("104.441964 mm")),
])
pocket16 = body.newObject("PartDesign::Pocket", "Pocket015")
pocket16.Profile = sketch34
pocket16.Length = 43
pocket16.Reversed = True

# Sketch on XY plane
sketch35 = body.newObject("Sketcher::SketchObject", "Sketch034")
sketch35.AttachmentSupport = (doc.getObject("XY_Plane"), [""])
sketch35.MapMode = "FlatFace"
sketch35.AttachmentOffset = App.Placement(V(0, 0, 4), App.Rotation())
add_polygon(sketch35, [(-51.776786, 11.558036), (-51.776786, 6.558036), (-46.776786, 6.558036), (-46.776786, 11.558036)])  # lines 0-3
add_polygon(sketch35, [(-51.776786, -97.441964), (-51.776786, -102.441964), (-46.776786, -102.441964), (-46.776786, -97.441964)])  # lines 4-7
sketch35.addConstraint([
    Sketcher.Constraint("Vertical", 0),
    Sketcher.Constraint("Horizontal", 1),
    Sketcher.Constraint("Vertical", 2),
    Sketcher.Constraint("Horizontal", 3),
    Sketcher.Constraint("Vertical", 4),
    Sketcher.Constraint("Horizontal", 5),
    Sketcher.Constraint("Vertical", 6),
    Sketcher.Constraint("Horizontal", 7),
    Sketcher.Constraint("Vertical", 3, 2, 4, 2),
    Sketcher.Constraint("Vertical", 2, 2, 5, 2),
    Sketcher.Constraint("Equal", 7, 0),
    Sketcher.Constraint("Equal", 2, 4),
    Sketcher.Constraint("DistanceX", 1, 1, 1, 2, Q("5 mm")),
    Sketcher.Constraint("DistanceY", 4, 2, 0, 2, Q("109 mm")),
    Sketcher.Constraint("DistanceX", 0, 2, -1, 1, Q("51.776786 mm")),
    Sketcher.Constraint("DistanceY", -1, 1, 0, 2, Q("6.558036 mm")),
])
pad19 = body.newObject("PartDesign::Pad", "Pad018")
pad19.Profile = sketch35
pad19.Length = 43

# Sketch on XY plane
sketch36 = body.newObject("Sketcher::SketchObject", "Sketch035")
sketch36.AttachmentSupport = (doc.getObject("XY_Plane"), [""])
sketch36.MapMode = "FlatFace"
sketch36.AttachmentOffset = App.Placement(V(0, 0, 4), App.Rotation())
add_polygon(sketch36, [(-67.526786, 11.558036), (-67.526786, 6.558036), (-62.526786, 6.558036), (-62.526786, 11.558036)])  # lines 0-3
add_polygon(sketch36, [(-67.526786, -97.441964), (-67.526786, -102.441964), (-62.526786, -102.441964), (-62.526786, -97.441964)])  # lines 4-7
sketch36.addConstraint([
    Sketcher.Constraint("Vertical", 0),
    Sketcher.Constraint("Horizontal", 1),
    Sketcher.Constraint("Vertical", 2),
    Sketcher.Constraint("Horizontal", 3),
    Sketcher.Constraint("Vertical", 4),
    Sketcher.Constraint("Horizontal", 5),
    Sketcher.Constraint("Vertical", 6),
    Sketcher.Constraint("Horizontal", 7),
    Sketcher.Constraint("Vertical", 3, 2, 4, 2),
    Sketcher.Constraint("Vertical", 2, 2, 5, 2),
    Sketcher.Constraint("Equal", 7, 0),
    Sketcher.Constraint("Equal", 2, 4),
    Sketcher.Constraint("DistanceX", 1, 1, 1, 2, Q("5 mm")),
    Sketcher.Constraint("DistanceY", 4, 2, 0, 2, Q("109 mm")),
    Sketcher.Constraint("DistanceX", 0, 2, -1, 1, Q("67.526786 mm")),
    Sketcher.Constraint("DistanceY", -1, 1, 0, 2, Q("6.558036 mm")),
])
pocket17 = body.newObject("PartDesign::Pocket", "Pocket016")
pocket17.Profile = sketch36
pocket17.Length = 43
pocket17.Reversed = True

# Sketch on XY plane
sketch37 = body.newObject("Sketcher::SketchObject", "Sketch036")
sketch37.AttachmentSupport = (doc.getObject("XY_Plane"), [""])
sketch37.MapMode = "FlatFace"
sketch37.AttachmentOffset = App.Placement(V(0, 0, 47), App.Rotation())
sketch37.addGeometry([
    Part.Circle(V(-49.276786, 9.058036, 0), V(0, 0, 1), 1),
    Part.Circle(V(-49.276786, -99.941964, 0), V(0, 0, 1), 1),
], False)
sketch37.addConstraint([
    Sketcher.Constraint("Equal", 0, 1),
    Sketcher.Constraint("Vertical", 0, 3, 1, 3),
    Sketcher.Constraint("Diameter", 0, Q("2 mm")),
    Sketcher.Constraint("DistanceY", 1, 3, 0, 3, Q("109 mm")),
    Sketcher.Constraint("DistanceX", 0, 3, -1, 1, Q("49.276786 mm")),
    Sketcher.Constraint("DistanceY", -1, 1, 0, 3, Q("9.058036 mm")),
])
pocket18 = body.newObject("PartDesign::Pocket", "Pocket017")
pocket18.Profile = sketch37
pocket18.Length = 3

# Sketch on XY plane
sketch38 = body.newObject("Sketcher::SketchObject", "Sketch037")
sketch38.AttachmentSupport = (doc.getObject("XY_Plane"), [""])
sketch38.MapMode = "FlatFace"
sketch38.AttachmentOffset = App.Placement(V(0, 0, 4), App.Rotation())
add_polygon(sketch38, [(-21.919538, -29.792331), (-21.919538, -55.996368), (0, -55.996368), (0, -29.792331)])  # lines 0-3
sketch38.addConstraint([
    Sketcher.Constraint("Vertical", 0),
    Sketcher.Constraint("Horizontal", 1),
    Sketcher.Constraint("Vertical", 2),
    Sketcher.Constraint("Horizontal", 3),
    Sketcher.Constraint("PointOnObject", 1, 2, -2),
    Sketcher.Constraint("DistanceX", 1, 1, 1, 2, Q("21.919538 mm")),
    Sketcher.Constraint("DistanceY", 0, 2, 0, 1, Q("26.204037 mm")),
    Sketcher.Constraint("DistanceY", 2, 2, -1, 1, Q("29.792331 mm")),
])
pocket19 = body.newObject("PartDesign::Pocket", "Pocket018")
pocket19.Profile = sketch38
pocket19.Length = 43
pocket19.Reversed = True

# Sketch on XY plane
sketch39 = body.newObject("Sketcher::SketchObject", "Sketch038")
sketch39.AttachmentSupport = (doc.getObject("XY_Plane"), [""])
sketch39.MapMode = "FlatFace"
sketch39.AttachmentOffset = App.Placement(V(0, 0, 4), App.Rotation())
add_polygon(sketch39, [(91.146028, -59.635818), (91.146028, -95.545053), (150.223214, -95.545053), (150.223214, -59.635818)])  # lines 0-3
sketch39.addConstraint([
    Sketcher.Constraint("Vertical", 0),
    Sketcher.Constraint("Horizontal", 1),
    Sketcher.Constraint("Vertical", 2),
    Sketcher.Constraint("Horizontal", 3),
    Sketcher.Constraint("DistanceX", 1, 1, 1, 2, Q("59.077186 mm")),
    Sketcher.Constraint("DistanceY", 0, 2, 0, 1, Q("35.909236 mm")),
    Sketcher.Constraint("DistanceX", -1, 1, 0, 2, Q("91.146028 mm")),
    Sketcher.Constraint("DistanceY", 0, 2, -1, 1, Q("95.545053 mm")),
])
pad20 = body.newObject("PartDesign::Pad", "Pad019")
pad20.Profile = sketch39
pad20.Length = 4
pad20.Reversed = True

doc.recompute()
